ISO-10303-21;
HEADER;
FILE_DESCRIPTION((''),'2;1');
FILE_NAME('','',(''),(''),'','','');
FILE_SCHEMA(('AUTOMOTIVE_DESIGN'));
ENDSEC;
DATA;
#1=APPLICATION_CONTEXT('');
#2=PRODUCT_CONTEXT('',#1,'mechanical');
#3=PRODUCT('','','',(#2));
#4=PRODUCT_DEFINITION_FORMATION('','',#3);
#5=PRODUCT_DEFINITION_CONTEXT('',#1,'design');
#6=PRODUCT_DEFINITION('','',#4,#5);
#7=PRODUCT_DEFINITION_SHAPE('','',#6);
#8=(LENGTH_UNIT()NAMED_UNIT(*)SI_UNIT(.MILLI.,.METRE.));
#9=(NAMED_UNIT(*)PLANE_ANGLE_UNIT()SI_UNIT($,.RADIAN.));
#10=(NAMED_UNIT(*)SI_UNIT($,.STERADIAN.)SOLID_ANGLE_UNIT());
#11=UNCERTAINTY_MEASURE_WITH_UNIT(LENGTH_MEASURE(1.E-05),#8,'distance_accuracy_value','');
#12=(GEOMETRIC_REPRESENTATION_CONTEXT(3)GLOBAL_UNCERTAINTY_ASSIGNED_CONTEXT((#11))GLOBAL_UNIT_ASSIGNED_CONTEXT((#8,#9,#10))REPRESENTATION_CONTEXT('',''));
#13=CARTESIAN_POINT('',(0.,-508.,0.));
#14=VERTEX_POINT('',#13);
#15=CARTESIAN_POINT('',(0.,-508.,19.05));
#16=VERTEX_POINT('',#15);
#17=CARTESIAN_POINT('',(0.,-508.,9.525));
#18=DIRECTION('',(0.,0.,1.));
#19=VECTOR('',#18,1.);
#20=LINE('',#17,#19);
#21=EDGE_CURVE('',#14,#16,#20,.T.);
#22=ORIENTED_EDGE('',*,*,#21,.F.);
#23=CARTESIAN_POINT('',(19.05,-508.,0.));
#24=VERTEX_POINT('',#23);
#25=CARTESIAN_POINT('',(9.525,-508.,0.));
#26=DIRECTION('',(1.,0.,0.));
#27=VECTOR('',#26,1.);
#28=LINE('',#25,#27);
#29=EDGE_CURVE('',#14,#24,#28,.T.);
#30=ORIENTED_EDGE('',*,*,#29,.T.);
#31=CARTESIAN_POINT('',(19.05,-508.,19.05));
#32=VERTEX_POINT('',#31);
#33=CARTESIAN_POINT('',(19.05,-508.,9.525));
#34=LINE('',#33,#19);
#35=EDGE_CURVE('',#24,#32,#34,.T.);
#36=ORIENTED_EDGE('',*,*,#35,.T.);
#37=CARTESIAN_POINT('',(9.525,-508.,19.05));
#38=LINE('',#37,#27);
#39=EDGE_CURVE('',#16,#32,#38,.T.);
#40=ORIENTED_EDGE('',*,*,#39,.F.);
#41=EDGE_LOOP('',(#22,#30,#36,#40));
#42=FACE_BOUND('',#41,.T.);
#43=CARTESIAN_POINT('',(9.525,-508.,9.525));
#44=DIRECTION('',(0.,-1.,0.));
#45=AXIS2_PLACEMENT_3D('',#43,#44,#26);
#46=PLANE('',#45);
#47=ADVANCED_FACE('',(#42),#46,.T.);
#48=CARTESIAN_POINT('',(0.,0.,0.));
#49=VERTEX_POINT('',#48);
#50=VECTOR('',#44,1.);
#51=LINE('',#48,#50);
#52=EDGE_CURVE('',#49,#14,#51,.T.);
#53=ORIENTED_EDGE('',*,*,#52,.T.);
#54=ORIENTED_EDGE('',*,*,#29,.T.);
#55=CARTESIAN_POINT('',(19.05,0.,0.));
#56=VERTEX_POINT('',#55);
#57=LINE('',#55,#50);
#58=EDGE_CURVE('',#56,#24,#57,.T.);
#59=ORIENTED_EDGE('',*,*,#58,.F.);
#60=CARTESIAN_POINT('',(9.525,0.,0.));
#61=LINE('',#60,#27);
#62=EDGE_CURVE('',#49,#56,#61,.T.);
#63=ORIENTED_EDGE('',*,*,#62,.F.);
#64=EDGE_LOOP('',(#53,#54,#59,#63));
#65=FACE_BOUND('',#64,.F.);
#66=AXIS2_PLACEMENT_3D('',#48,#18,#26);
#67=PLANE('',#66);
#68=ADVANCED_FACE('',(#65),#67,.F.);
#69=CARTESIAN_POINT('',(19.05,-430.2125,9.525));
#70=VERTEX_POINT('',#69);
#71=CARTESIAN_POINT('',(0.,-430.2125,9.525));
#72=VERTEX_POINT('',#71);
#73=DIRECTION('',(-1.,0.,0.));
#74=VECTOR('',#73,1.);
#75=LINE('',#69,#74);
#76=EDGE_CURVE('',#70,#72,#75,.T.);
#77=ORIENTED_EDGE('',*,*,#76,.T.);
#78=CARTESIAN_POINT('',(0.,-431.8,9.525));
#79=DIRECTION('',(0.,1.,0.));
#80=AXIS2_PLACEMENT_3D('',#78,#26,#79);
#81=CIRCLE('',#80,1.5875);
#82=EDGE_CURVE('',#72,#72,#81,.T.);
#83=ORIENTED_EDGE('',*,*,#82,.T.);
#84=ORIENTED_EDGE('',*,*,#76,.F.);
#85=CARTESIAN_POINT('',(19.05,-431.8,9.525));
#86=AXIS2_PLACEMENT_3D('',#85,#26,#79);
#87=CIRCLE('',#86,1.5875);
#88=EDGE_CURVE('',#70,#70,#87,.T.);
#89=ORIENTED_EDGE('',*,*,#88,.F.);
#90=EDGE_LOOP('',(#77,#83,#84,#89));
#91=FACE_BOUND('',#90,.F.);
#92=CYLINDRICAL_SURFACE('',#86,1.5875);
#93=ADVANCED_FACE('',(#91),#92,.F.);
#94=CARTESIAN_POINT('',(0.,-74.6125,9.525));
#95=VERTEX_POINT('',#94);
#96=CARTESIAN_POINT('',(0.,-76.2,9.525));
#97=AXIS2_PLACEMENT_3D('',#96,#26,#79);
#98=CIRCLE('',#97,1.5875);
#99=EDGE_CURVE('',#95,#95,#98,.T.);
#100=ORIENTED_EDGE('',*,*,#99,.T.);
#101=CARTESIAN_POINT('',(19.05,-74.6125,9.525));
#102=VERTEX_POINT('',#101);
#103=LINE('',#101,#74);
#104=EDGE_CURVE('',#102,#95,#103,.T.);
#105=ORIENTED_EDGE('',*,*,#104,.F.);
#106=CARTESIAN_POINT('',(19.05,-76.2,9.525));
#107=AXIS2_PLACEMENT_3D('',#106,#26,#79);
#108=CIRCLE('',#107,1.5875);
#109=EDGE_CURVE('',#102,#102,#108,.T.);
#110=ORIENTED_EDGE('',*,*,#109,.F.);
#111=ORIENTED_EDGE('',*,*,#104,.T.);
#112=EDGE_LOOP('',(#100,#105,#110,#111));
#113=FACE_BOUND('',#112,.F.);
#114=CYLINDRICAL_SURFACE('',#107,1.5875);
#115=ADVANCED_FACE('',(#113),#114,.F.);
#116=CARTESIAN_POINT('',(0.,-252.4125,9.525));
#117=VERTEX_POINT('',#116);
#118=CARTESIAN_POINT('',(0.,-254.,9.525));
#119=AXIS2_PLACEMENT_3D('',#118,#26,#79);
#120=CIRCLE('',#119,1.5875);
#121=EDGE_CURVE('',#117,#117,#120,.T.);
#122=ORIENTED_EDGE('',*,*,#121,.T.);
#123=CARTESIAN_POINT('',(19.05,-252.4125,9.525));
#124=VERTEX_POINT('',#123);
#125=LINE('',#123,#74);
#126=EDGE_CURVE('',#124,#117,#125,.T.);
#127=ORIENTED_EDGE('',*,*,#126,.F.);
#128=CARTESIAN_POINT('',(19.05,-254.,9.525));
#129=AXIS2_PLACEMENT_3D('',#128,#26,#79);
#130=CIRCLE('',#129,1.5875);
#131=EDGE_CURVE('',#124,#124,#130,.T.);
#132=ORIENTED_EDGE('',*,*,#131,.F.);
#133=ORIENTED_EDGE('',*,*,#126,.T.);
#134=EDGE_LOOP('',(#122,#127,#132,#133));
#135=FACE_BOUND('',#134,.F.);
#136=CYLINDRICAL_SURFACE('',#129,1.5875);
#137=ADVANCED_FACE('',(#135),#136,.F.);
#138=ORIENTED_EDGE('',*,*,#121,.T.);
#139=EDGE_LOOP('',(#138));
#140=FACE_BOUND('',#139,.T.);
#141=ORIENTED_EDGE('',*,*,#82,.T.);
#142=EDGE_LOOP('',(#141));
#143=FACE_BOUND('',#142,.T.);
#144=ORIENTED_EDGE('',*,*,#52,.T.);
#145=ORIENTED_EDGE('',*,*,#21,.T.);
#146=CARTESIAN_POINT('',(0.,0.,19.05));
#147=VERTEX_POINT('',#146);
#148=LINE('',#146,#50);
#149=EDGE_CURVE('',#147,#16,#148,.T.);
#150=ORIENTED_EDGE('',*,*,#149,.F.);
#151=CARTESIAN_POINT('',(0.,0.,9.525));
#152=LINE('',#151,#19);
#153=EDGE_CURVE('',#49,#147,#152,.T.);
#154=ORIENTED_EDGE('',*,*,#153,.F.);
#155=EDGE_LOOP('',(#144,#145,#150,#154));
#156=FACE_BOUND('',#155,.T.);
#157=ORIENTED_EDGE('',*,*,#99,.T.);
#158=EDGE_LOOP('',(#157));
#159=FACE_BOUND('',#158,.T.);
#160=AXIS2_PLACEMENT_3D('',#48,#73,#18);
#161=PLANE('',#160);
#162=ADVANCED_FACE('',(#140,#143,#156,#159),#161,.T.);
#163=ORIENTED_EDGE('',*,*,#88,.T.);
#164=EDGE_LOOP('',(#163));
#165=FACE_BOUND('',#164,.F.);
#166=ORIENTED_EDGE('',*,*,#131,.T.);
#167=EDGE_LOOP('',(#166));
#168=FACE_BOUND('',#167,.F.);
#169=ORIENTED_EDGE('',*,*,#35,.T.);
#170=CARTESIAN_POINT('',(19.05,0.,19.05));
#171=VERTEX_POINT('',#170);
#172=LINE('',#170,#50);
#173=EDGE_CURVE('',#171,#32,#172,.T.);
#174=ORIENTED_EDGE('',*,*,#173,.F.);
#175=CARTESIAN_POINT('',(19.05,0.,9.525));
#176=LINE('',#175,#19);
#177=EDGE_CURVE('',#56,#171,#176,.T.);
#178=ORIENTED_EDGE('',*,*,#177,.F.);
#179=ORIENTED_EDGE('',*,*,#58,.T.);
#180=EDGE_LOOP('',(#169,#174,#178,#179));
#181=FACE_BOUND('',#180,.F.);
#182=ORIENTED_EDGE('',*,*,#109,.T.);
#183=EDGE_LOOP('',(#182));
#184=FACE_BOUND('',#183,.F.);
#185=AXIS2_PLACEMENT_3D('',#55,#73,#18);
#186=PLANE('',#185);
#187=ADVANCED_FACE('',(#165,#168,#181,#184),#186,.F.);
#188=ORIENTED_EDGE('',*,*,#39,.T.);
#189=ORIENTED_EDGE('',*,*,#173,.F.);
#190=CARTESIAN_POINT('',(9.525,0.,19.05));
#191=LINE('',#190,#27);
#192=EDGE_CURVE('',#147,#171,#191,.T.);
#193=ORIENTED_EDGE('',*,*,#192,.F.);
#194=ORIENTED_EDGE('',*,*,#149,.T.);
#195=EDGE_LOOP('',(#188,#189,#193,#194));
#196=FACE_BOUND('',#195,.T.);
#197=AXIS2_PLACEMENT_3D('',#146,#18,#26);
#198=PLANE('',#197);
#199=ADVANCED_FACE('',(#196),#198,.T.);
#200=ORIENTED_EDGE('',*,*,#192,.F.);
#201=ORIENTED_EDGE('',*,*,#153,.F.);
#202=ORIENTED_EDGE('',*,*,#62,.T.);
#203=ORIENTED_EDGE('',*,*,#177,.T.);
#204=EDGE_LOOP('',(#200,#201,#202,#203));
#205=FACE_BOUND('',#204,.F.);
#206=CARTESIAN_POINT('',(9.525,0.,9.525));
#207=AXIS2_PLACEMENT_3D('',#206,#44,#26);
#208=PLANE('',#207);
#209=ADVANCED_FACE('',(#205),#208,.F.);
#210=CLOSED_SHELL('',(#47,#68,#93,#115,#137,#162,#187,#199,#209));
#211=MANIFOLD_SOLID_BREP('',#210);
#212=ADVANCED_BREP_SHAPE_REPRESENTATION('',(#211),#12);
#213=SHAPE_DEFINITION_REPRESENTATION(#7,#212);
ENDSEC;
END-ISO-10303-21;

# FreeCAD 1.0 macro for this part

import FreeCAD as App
import Part
import Sketcher

V = App.Vector
Q = App.Units.Quantity


def add_polygon(sketch, points):
    """Adds a closed chain of lines whose ends are joined by coincident constraints."""
    first, n = sketch.GeometryCount, len(points)
    for a, b in zip(points, points[1:] + points[:1]):
        sketch.addGeometry(Part.LineSegment(App.Vector(*a, 0), App.Vector(*b, 0)), False)
    for i in range(n):
        sketch.addConstraint(Sketcher.Constraint("Coincident", first + i, 2, first + (i + 1) % n, 1))

doc = App.newDocument("Part")
body = doc.addObject("PartDesign::Body", "Body")

# Sketch on XZ plane
sketch1 = body.newObject("Sketcher::SketchObject", "Sketch")
sketch1.AttachmentSupport = (doc.getObject("XZ_Plane"), [""])
sketch1.MapMode = "FlatFace"
add_polygon(sketch1, [(0, 19), (0, 0), (19, 0), (19, 19)])  # lines 0-3
sketch1.addConstraint([
    Sketcher.Constraint("Vertical", 0),
    Sketcher.Constraint("Horizontal", 1),
    Sketcher.Constraint("Vertical", 2),
    Sketcher.Constraint("Horizontal", 3),
    Sketcher.Constraint("Coincident", 0, 2, -1, 1),
    Sketcher.Constraint("Equal", 3, 0),
    Sketcher.Constraint("DistanceX", 1, 1, 1, 2, Q("0.75 in")),
])
pad1 = body.newObject("PartDesign::Pad", "Pad")
pad1.Profile = sketch1
pad1.Length = Q("20 in")

# Sketch on YZ plane
sketch2 = body.newObject("Sketcher::SketchObject", "Sketch001")
sketch2.AttachmentSupport = (doc.getObject("YZ_Plane"), [""])
sketch2.MapMode = "FlatFace"
sketch2.AttachmentOffset = App.Placement(V(0, 0, 0.75 * 25.4), App.Rotation())
sketch2.addGeometry([
    Part.Circle(V(-254, 9.5, 0), V(0, 0, 1), 1.6),
    Part.Circle(V(-76.2, 9.5, 0), V(0, 0, 1), 1.6),
    Part.Circle(V(-431.8, 9.5, 0), V(0, 0, 1), 1.6),
], False)
sketch2.addConstraint([
    Sketcher.Constraint("Equal", 0, 1),
    Sketcher.Constraint("Equal", 1, 2),
    Sketcher.Constraint("Horizontal", 0, 3, 1, 3),
    Sketcher.Constraint("Horizontal", 1, 3, 2, 3),
    Sketcher.Constraint("Diameter", 0, Q("0.125 in")),
    Sketcher.Constraint("DistanceX", 0, 3, -1, 1, Q("10 in")),
    Sketcher.Constraint("DistanceX", 1, 3, -1, 1, Q("3 in")),
    Sketcher.Constraint("DistanceX", 2, 3, -1, 1, Q("17 in")),
    Sketcher.Constraint("DistanceY", -1, 1, 0, 3, Q("0.375 in")),
])
pocket1 = body.newObject("PartDesign::Pocket", "Pocket")
pocket1.Profile = sketch2
pocket1.Length = Q("1 in")

doc.recompute()
